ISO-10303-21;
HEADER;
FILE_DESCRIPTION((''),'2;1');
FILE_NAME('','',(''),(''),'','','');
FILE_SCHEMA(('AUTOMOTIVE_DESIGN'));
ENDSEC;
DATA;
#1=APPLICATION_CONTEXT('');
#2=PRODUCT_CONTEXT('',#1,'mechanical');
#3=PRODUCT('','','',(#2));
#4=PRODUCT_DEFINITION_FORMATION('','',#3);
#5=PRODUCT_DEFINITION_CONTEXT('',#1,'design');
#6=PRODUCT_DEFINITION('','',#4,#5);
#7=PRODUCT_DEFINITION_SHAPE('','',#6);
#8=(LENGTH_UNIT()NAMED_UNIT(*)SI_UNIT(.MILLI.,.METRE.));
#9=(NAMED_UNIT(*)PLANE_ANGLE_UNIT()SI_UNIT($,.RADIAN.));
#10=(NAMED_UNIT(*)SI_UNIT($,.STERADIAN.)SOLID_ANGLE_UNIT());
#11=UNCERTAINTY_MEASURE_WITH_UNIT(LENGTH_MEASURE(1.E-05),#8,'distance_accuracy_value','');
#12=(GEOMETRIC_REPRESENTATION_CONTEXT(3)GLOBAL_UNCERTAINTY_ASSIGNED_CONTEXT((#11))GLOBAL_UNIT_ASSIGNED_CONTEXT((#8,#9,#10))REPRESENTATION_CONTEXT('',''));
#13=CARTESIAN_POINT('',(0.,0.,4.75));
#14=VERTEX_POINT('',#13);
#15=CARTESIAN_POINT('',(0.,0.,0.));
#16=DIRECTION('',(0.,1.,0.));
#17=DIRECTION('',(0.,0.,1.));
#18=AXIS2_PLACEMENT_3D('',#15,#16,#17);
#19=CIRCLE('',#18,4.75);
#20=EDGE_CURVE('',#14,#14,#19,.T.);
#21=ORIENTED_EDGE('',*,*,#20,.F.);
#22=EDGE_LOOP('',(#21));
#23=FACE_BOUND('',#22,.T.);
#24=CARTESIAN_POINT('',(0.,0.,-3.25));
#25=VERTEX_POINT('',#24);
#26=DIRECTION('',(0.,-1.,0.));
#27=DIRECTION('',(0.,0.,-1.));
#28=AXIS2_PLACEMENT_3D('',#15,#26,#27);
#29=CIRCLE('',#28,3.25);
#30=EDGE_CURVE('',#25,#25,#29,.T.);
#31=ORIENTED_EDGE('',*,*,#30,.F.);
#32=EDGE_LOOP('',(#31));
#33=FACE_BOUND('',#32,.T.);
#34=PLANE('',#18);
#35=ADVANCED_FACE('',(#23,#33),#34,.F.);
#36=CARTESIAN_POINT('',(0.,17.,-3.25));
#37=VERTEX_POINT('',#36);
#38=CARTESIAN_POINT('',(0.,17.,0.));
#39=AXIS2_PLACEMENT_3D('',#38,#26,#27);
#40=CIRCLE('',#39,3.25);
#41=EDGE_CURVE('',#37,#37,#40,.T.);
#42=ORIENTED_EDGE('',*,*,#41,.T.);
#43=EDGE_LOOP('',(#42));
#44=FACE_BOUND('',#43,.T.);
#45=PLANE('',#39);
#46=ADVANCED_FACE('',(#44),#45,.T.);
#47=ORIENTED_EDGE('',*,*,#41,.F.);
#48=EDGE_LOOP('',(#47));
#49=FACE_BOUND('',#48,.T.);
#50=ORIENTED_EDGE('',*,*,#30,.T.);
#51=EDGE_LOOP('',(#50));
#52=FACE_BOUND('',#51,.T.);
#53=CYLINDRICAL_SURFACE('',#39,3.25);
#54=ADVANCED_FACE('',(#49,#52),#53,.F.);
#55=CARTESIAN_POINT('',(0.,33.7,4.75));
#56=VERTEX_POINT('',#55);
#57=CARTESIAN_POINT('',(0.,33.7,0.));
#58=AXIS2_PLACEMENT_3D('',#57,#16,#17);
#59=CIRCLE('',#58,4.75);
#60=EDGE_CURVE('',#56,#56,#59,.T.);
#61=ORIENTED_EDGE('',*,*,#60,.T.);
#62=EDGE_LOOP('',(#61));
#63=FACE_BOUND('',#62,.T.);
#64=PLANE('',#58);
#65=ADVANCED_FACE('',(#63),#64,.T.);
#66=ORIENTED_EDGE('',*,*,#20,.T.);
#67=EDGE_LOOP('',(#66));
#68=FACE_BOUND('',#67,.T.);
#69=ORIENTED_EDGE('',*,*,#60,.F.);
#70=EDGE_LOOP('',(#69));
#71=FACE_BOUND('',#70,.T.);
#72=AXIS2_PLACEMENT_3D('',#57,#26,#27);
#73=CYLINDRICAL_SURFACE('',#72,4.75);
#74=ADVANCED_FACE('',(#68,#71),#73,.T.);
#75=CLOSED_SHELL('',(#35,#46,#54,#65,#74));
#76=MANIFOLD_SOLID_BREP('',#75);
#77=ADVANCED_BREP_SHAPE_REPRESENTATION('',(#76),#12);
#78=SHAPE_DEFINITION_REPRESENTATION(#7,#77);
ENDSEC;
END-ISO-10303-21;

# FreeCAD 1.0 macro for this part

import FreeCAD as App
import Part
import Sketcher

V = App.Vector
Q = App.Units.Quantity

doc = App.newDocument("Part")
body = doc.addObject("PartDesign::Body", "Body")

# Sketch on XZ plane
sketch1 = body.newObject("Sketcher::SketchObject", "Sketch")
sketch1.AttachmentSupport = (doc.getObject("XZ_Plane"), [""])
sketch1.MapMode = "FlatFace"
sketch1.addGeometry(Part.Circle(V(0, 0, 0), V(0, 0, 1), 4.8), False)
sketch1.addConstraint([
    Sketcher.Constraint("Coincident", 0, 3, -1, 1),
    Sketcher.Constraint("Diameter", 0, Q("9.5 mm")),
])
pad1 = body.newObject("PartDesign::Pad", "Pad")
pad1.Profile = sketch1
pad1.Length = 33.7
pad1.Reversed = True

# Sketch on XZ plane
sketch2 = body.newObject("Sketcher::SketchObject", "Sketch001")
sketch2.AttachmentSupport = (doc.getObject("XZ_Plane"), [""])
sketch2.MapMode = "FlatFace"
sketch2.addGeometry(Part.Circle(V(0, 0, 0), V(0, 0, 1), 3.2), False)
sketch2.addConstraint([
    Sketcher.Constraint("Coincident", 0, 3, -1, 1),
    Sketcher.Constraint("Diameter", 0, Q("6.5 mm")),
])
pocket1 = body.newObject("PartDesign::Pocket", "Pocket")
pocket1.Profile = sketch2
pocket1.Length = 17

doc.recompute()
